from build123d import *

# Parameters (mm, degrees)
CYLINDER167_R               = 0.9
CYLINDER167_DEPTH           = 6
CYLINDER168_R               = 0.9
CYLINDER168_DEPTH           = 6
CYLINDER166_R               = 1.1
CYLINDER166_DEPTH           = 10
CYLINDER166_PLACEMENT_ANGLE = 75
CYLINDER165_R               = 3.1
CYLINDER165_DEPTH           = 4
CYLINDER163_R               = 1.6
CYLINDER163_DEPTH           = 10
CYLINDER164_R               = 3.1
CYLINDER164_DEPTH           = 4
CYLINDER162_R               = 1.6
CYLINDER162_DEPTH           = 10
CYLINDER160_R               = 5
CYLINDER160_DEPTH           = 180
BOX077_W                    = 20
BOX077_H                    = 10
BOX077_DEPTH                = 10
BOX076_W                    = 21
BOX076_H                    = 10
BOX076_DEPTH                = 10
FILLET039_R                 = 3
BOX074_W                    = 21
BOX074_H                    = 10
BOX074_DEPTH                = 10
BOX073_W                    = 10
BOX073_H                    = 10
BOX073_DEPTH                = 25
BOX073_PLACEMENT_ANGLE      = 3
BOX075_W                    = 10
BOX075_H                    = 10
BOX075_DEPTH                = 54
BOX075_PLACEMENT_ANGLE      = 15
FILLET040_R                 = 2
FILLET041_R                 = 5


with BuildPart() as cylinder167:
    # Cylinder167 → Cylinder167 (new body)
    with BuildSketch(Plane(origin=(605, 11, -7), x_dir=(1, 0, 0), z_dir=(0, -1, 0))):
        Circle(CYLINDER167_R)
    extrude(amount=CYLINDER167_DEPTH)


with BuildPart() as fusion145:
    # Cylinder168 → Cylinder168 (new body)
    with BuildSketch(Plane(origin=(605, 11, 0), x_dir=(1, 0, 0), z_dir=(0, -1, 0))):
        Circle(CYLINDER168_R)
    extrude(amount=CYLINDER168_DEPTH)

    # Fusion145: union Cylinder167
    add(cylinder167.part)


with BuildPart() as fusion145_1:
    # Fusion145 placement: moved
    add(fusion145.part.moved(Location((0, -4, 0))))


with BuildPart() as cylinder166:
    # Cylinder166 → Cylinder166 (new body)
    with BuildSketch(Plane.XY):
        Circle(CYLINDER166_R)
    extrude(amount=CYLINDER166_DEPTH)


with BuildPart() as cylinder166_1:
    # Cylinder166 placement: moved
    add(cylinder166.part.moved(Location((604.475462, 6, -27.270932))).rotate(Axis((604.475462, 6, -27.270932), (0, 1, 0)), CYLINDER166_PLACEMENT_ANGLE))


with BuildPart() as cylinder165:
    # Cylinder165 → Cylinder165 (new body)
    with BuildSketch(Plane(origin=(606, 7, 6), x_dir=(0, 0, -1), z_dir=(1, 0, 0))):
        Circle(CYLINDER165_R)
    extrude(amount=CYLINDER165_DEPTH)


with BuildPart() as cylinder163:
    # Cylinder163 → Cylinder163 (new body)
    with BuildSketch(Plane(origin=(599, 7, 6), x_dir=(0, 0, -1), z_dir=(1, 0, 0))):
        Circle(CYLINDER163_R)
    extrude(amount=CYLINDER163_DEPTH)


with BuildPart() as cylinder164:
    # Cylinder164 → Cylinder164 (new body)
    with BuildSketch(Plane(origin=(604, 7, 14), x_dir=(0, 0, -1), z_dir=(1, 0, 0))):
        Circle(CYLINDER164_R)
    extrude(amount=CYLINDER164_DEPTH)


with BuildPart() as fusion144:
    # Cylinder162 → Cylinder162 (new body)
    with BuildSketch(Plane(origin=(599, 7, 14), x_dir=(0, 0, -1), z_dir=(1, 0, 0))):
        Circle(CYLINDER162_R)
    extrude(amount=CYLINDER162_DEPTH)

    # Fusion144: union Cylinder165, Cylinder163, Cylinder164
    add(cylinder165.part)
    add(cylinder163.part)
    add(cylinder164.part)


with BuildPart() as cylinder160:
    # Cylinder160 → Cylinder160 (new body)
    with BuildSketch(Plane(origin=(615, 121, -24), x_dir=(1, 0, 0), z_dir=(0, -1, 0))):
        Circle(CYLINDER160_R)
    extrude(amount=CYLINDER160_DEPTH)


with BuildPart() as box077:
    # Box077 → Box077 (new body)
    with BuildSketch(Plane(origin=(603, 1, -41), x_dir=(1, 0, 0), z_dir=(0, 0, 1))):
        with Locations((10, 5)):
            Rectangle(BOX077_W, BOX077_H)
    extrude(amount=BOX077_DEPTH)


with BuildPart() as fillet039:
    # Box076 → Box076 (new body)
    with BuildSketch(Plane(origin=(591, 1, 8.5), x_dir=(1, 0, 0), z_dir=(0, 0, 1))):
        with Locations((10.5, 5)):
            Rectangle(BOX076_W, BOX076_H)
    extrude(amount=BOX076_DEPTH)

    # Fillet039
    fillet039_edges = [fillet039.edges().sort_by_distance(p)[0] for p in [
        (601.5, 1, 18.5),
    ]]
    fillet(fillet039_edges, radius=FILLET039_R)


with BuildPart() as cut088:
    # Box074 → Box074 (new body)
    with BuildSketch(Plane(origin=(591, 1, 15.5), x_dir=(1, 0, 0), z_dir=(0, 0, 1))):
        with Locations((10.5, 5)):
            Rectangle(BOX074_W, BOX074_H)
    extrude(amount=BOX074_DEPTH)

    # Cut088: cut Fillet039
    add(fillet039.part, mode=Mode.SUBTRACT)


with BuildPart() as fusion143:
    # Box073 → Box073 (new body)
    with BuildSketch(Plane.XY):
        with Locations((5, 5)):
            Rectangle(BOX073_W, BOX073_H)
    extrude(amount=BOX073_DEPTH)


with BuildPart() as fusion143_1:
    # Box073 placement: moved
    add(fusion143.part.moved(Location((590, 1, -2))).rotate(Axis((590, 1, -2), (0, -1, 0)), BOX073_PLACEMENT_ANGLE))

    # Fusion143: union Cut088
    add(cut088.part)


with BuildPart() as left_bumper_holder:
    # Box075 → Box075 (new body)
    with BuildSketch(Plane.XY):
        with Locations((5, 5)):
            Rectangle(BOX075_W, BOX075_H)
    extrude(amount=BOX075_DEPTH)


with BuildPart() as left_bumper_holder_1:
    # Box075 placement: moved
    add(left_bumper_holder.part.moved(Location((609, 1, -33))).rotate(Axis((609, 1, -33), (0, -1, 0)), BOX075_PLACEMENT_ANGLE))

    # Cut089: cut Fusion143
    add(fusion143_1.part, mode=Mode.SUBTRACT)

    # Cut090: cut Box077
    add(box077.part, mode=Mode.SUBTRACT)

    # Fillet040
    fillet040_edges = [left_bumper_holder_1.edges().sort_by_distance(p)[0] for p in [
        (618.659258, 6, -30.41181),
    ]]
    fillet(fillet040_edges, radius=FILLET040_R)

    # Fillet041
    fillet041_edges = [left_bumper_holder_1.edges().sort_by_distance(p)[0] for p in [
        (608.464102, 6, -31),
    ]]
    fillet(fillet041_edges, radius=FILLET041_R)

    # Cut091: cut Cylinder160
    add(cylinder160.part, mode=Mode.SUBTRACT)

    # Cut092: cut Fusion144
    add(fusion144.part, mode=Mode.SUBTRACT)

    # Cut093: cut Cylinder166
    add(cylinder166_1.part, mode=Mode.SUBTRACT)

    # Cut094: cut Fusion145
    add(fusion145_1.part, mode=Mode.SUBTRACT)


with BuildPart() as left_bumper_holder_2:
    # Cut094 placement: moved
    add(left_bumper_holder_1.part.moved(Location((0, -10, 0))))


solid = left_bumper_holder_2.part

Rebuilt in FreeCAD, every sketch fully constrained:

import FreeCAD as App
import Part
import Sketcher
from FreeCAD import Vector


def edges_at(feature, points):
    """Names of the edges that pass closest to the given points."""
    edges = feature.Shape.Edges
    near = lambda p: min(range(len(edges)), key=lambda i: edges[i].distToShape(Part.Vertex(*p))[0])
    return sorted({f"Edge{near(p) + 1}" for p in points})


def add_polygon(sketch, points):
    """Adds a closed chain of lines whose ends are joined by coincident constraints."""
    first, n = sketch.GeometryCount, len(points)
    for a, b in zip(points, points[1:] + points[:1]):
        sketch.addGeometry(Part.LineSegment(App.Vector(*a, 0), App.Vector(*b, 0)), False)
    for i in range(n):
        sketch.addConstraint(Sketcher.Constraint("Coincident", first + i, 2, first + (i + 1) % n, 1))

doc = App.newDocument("Part")
body = doc.addObject("PartDesign::Body", "Body")

# Sketch on XZ plane
sketch1 = body.newObject("Sketcher::SketchObject", "Sketch")
sketch1.AttachmentSupport = (doc.getObject("XZ_Plane"), [""])
sketch1.MapMode = "FlatFace"
sketch1.AttachmentOffset = App.Placement(Vector(0, 0, -11), App.Rotation())
sketch1.addGeometry(Part.Circle(Vector(605, -7, 0), Vector(0, 0, 1), 0.9), False)
sketch1.addConstraint(Sketcher.Constraint("Diameter", 0, 1.8))
sketch1.addConstraint(Sketcher.Constraint("DistanceX", -1, 1, 0, 3, 605.0))
sketch1.addConstraint(Sketcher.Constraint("DistanceY", 0, 3, -1, 1, 7.0))
pad1 = body.newObject("PartDesign::Pad", "Pad")
pad1.Profile = sketch1
pad1.Length = 6
body2 = doc.addObject("PartDesign::Body", "Body001")
body2.AllowCompound = True

# Sketch on XZ plane
sketch2 = body2.newObject("Sketcher::SketchObject", "Sketch001")
sketch2.AttachmentSupport = (doc.getObject("XZ_Plane001"), [""])
sketch2.MapMode = "FlatFace"
sketch2.AttachmentOffset = App.Placement(Vector(0, 0, -11), App.Rotation())
sketch2.addGeometry(Part.Circle(Vector(605, 0, 0), Vector(0, 0, 1), 0.9), False)
sketch2.addConstraint(Sketcher.Constraint("PointOnObject", 0, 3, -1))
sketch2.addConstraint(Sketcher.Constraint("Diameter", 0, 1.8))
sketch2.addConstraint(Sketcher.Constraint("DistanceX", -1, 1, 0, 3, 605.0))
pad2 = body2.newObject("PartDesign::Pad", "Pad001")
pad2.Profile = sketch2
pad2.Length = 6
doc.recompute()

boolean = body2.newObject("PartDesign::Boolean", "Boolean")
boolean.Type = "Fuse"
boolean.addObjects([body])
body3 = doc.addObject("PartDesign::Body", "Body002")
body3.AllowCompound = True
doc.recompute()

body2.Placement = App.Placement(Vector(0, -4, 0), App.Rotation(Vector(0, 0, 1), 0))
boolean2 = body3.newObject("PartDesign::Boolean", "Boolean001")
boolean2.Type = "Fuse"
boolean2.addObjects([body2])
body4 = doc.addObject("PartDesign::Body", "Body003")

# Sketch on XY plane
sketch3 = body4.newObject("Sketcher::SketchObject", "Sketch002")
sketch3.AttachmentSupport = (doc.getObject("XY_Plane003"), [""])
sketch3.MapMode = "FlatFace"
sketch3.addGeometry(Part.Circle(Vector(0, 0, 0), Vector(0, 0, 1), 1.1), False)
sketch3.addConstraint(Sketcher.Constraint("Coincident", 0, 3, -1, 1))
sketch3.addConstraint(Sketcher.Constraint("Diameter", 0, 2.2))
pad3 = body4.newObject("PartDesign::Pad", "Pad002")
pad3.Profile = sketch3
pad3.Length = 10
body5 = doc.addObject("PartDesign::Body", "Body004")
doc.recompute()

body4.Placement = App.Placement(Vector(604.475462, 6, -27.270932), App.Rotation(Vector(0, 1, 0), 75))
boolean3 = body5.newObject("PartDesign::Boolean", "Boolean002")
boolean3.Type = "Fuse"
boolean3.addObjects([body4])
body6 = doc.addObject("PartDesign::Body", "Body005")

# Sketch on YZ plane
sketch4 = body6.newObject("Sketcher::SketchObject", "Sketch003")
sketch4.AttachmentSupport = (doc.getObject("YZ_Plane005"), [""])
sketch4.MapMode = "FlatFace"
sketch4.AttachmentOffset = App.Placement(Vector(0, 0, 606), App.Rotation())
sketch4.addGeometry(Part.Circle(Vector(7, 6, 0), Vector(0, 0, 1), 3.1), False)
sketch4.addConstraint(Sketcher.Constraint("Diameter", 0, 6.2))
sketch4.addConstraint(Sketcher.Constraint("DistanceX", -1, 1, 0, 3, 7.0))
sketch4.addConstraint(Sketcher.Constraint("DistanceY", -1, 1, 0, 3, 6.0))
pad4 = body6.newObject("PartDesign::Pad", "Pad003")
pad4.Profile = sketch4
pad4.Length = 4
body7 = doc.addObject("PartDesign::Body", "Body006")

# Sketch on YZ plane
sketch5 = body7.newObject("Sketcher::SketchObject", "Sketch004")
sketch5.AttachmentSupport = (doc.getObject("YZ_Plane006"), [""])
sketch5.MapMode = "FlatFace"
sketch5.AttachmentOffset = App.Placement(Vector(0, 0, 599), App.Rotation())
sketch5.addGeometry(Part.Circle(Vector(7, 6, 0), Vector(0, 0, 1), 1.6), False)
sketch5.addConstraint(Sketcher.Constraint("Diameter", 0, 3.2))
sketch5.addConstraint(Sketcher.Constraint("DistanceX", -1, 1, 0, 3, 7.0))
sketch5.addConstraint(Sketcher.Constraint("DistanceY", -1, 1, 0, 3, 6.0))
pad5 = body7.newObject("PartDesign::Pad", "Pad004")
pad5.Profile = sketch5
pad5.Length = 10
body8 = doc.addObject("PartDesign::Body", "Body007")

# Sketch on YZ plane
sketch6 = body8.newObject("Sketcher::SketchObject", "Sketch005")
sketch6.AttachmentSupport = (doc.getObject("YZ_Plane007"), [""])
sketch6.MapMode = "FlatFace"
sketch6.AttachmentOffset = App.Placement(Vector(0, 0, 604), App.Rotation())
sketch6.addGeometry(Part.Circle(Vector(7, 14, 0), Vector(0, 0, 1), 3.1), False)
sketch6.addConstraint(Sketcher.Constraint("Diameter", 0, 6.2))
sketch6.addConstraint(Sketcher.Constraint("DistanceX", -1, 1, 0, 3, 7.0))
sketch6.addConstraint(Sketcher.Constraint("DistanceY", -1, 1, 0, 3, 14.0))
pad6 = body8.newObject("PartDesign::Pad", "Pad005")
pad6.Profile = sketch6
pad6.Length = 4
body9 = doc.addObject("PartDesign::Body", "Body008")
body9.AllowCompound = True

# Sketch on YZ plane
sketch7 = body9.newObject("Sketcher::SketchObject", "Sketch006")
sketch7.AttachmentSupport = (doc.getObject("YZ_Plane008"), [""])
sketch7.MapMode = "FlatFace"
sketch7.AttachmentOffset = App.Placement(Vector(0, 0, 599), App.Rotation())
sketch7.addGeometry(Part.Circle(Vector(7, 14, 0), Vector(0, 0, 1), 1.6), False)
sketch7.addConstraint(Sketcher.Constraint("Diameter", 0, 3.2))
sketch7.addConstraint(Sketcher.Constraint("DistanceX", -1, 1, 0, 3, 7.0))
sketch7.addConstraint(Sketcher.Constraint("DistanceY", -1, 1, 0, 3, 14.0))
pad7 = body9.newObject("PartDesign::Pad", "Pad006")
pad7.Profile = sketch7
pad7.Length = 10
doc.recompute()

boolean4 = body9.newObject("PartDesign::Boolean", "Boolean003")
boolean4.Type = "Fuse"
boolean4.addObjects([body6])
doc.recompute()

boolean5 = body9.newObject("PartDesign::Boolean", "Boolean004")
boolean5.Type = "Fuse"
boolean5.addObjects([body7])
doc.recompute()

boolean6 = body9.newObject("PartDesign::Boolean", "Boolean005")
boolean6.Type = "Fuse"
boolean6.addObjects([body8])
body10 = doc.addObject("PartDesign::Body", "Body009")

# Sketch on XZ plane
sketch8 = body10.newObject("Sketcher::SketchObject", "Sketch007")
sketch8.AttachmentSupport = (doc.getObject("XZ_Plane009"), [""])
sketch8.MapMode = "FlatFace"
sketch8.AttachmentOffset = App.Placement(Vector(0, 0, -121), App.Rotation())
sketch8.addGeometry(Part.Circle(Vector(615, -24, 0), Vector(0, 0, 1), 5), False)
sketch8.addConstraint(Sketcher.Constraint("Diameter", 0, 10.0))
sketch8.addConstraint(Sketcher.Constraint("DistanceX", -1, 1, 0, 3, 615.0))
sketch8.addConstraint(Sketcher.Constraint("DistanceY", 0, 3, -1, 1, 24.0))
pad8 = body10.newObject("PartDesign::Pad", "Pad007")
pad8.Profile = sketch8
pad8.Length = 180
body11 = doc.addObject("PartDesign::Body", "Body010")

# Sketch on XY plane
sketch9 = body11.newObject("Sketcher::SketchObject", "Sketch008")
sketch9.AttachmentSupport = (doc.getObject("XY_Plane010"), [""])
sketch9.MapMode = "FlatFace"
sketch9.AttachmentOffset = App.Placement(Vector(0, 0, -41), App.Rotation())
add_polygon(sketch9, [(603, 11), (603, 1), (623, 1), (623, 11)])  # lines 0-3
sketch9.addConstraint(Sketcher.Constraint("Vertical", 0))
sketch9.addConstraint(Sketcher.Constraint("Horizontal", 1))
sketch9.addConstraint(Sketcher.Constraint("Vertical", 2))
sketch9.addConstraint(Sketcher.Constraint("Horizontal", 3))
sketch9.addConstraint(Sketcher.Constraint("DistanceX", 1, 1, 1, 2, 20.0))
sketch9.addConstraint(Sketcher.Constraint("DistanceY", 0, 2, 0, 1, 10.0))
sketch9.addConstraint(Sketcher.Constraint("DistanceX", -1, 1, 0, 2, 603.0))
sketch9.addConstraint(Sketcher.Constraint("DistanceY", -1, 1, 0, 2, 1.0))
pad9 = body11.newObject("PartDesign::Pad", "Pad008")
pad9.Profile = sketch9
pad9.Length = 10
body12 = doc.addObject("PartDesign::Body", "Body011")

# Sketch on XY plane
sketch10 = body12.newObject("Sketcher::SketchObject", "Sketch009")
sketch10.AttachmentSupport = (doc.getObject("XY_Plane011"), [""])
sketch10.MapMode = "FlatFace"
sketch10.AttachmentOffset = App.Placement(Vector(0, 0, 8.5), App.Rotation())
add_polygon(sketch10, [(591, 11), (591, 1), (612, 1), (612, 11)])  # lines 0-3
sketch10.addConstraint(Sketcher.Constraint("Vertical", 0))
sketch10.addConstraint(Sketcher.Constraint("Horizontal", 1))
sketch10.addConstraint(Sketcher.Constraint("Vertical", 2))
sketch10.addConstraint(Sketcher.Constraint("Horizontal", 3))
sketch10.addConstraint(Sketcher.Constraint("DistanceX", 1, 1, 1, 2, 21.0))
sketch10.addConstraint(Sketcher.Constraint("DistanceY", 0, 2, 0, 1, 10.0))
sketch10.addConstraint(Sketcher.Constraint("DistanceX", -1, 1, 0, 2, 591.0))
sketch10.addConstraint(Sketcher.Constraint("DistanceY", -1, 1, 0, 2, 1.0))
pad10 = body12.newObject("PartDesign::Pad", "Pad009")
pad10.Profile = sketch10
pad10.Length = 10
doc.recompute()

fillet = body12.newObject("PartDesign::Fillet", "Fillet")
fillet.Base = (pad10, edges_at(pad10, [(601.5, 1, 18.5)]))
fillet.Radius = 3
body13 = doc.addObject("PartDesign::Body", "Body012")

# Sketch on XY plane
sketch11 = body13.newObject("Sketcher::SketchObject", "Sketch010")
sketch11.AttachmentSupport = (doc.getObject("XY_Plane012"), [""])
sketch11.MapMode = "FlatFace"
sketch11.AttachmentOffset = App.Placement(Vector(0, 0, 15.5), App.Rotation())
add_polygon(sketch11, [(591, 11), (591, 1), (612, 1), (612, 11)])  # lines 0-3
sketch11.addConstraint(Sketcher.Constraint("Vertical", 0))
sketch11.addConstraint(Sketcher.Constraint("Horizontal", 1))
sketch11.addConstraint(Sketcher.Constraint("Vertical", 2))
sketch11.addConstraint(Sketcher.Constraint("Horizontal", 3))
sketch11.addConstraint(Sketcher.Constraint("DistanceX", 1, 1, 1, 2, 21.0))
sketch11.addConstraint(Sketcher.Constraint("DistanceY", 0, 2, 0, 1, 10.0))
sketch11.addConstraint(Sketcher.Constraint("DistanceX", -1, 1, 0, 2, 591.0))
sketch11.addConstraint(Sketcher.Constraint("DistanceY", -1, 1, 0, 2, 1.0))
pad11 = body13.newObject("PartDesign::Pad", "Pad010")
pad11.Profile = sketch11
pad11.Length = 10
doc.recompute()

boolean7 = body13.newObject("PartDesign::Boolean", "Boolean006")
boolean7.Type = "Cut"
boolean7.addObjects([body12])
body14 = doc.addObject("PartDesign::Body", "Body013")

# Sketch on XY plane
sketch12 = body14.newObject("Sketcher::SketchObject", "Sketch011")
sketch12.AttachmentSupport = (doc.getObject("XY_Plane013"), [""])
sketch12.MapMode = "FlatFace"
add_polygon(sketch12, [(0, 10), (0, 0), (10, 0), (10, 10)])  # lines 0-3
sketch12.addConstraint(Sketcher.Constraint("Vertical", 0))
sketch12.addConstraint(Sketcher.Constraint("Horizontal", 1))
sketch12.addConstraint(Sketcher.Constraint("Vertical", 2))
sketch12.addConstraint(Sketcher.Constraint("Horizontal", 3))
sketch12.addConstraint(Sketcher.Constraint("Coincident", 0, 2, -1, 1))
sketch12.addConstraint(Sketcher.Constraint("Equal", 3, 0))
sketch12.addConstraint(Sketcher.Constraint("DistanceX", 1, 1, 1, 2, 10.0))
pad12 = body14.newObject("PartDesign::Pad", "Pad011")
pad12.Profile = sketch12
pad12.Length = 25
body15 = doc.addObject("PartDesign::Body", "Body014")
doc.recompute()

body14.Placement = App.Placement(Vector(590, 1, -2), App.Rotation(Vector(0, -1, 0), 3))
boolean8 = body15.newObject("PartDesign::Boolean", "Boolean007")
boolean8.Type = "Fuse"
boolean8.addObjects([body14])
doc.recompute()

boolean9 = body15.newObject("PartDesign::Boolean", "Boolean008")
boolean9.Type = "Fuse"
boolean9.addObjects([body13])
body16 = doc.addObject("PartDesign::Body", "Body015")

# Sketch on XY plane
sketch13 = body16.newObject("Sketcher::SketchObject", "Sketch012")
sketch13.AttachmentSupport = (doc.getObject("XY_Plane015"), [""])
sketch13.MapMode = "FlatFace"
add_polygon(sketch13, [(0, 10), (0, 0), (10, 0), (10, 10)])  # lines 0-3
sketch13.addConstraint(Sketcher.Constraint("Vertical", 0))
sketch13.addConstraint(Sketcher.Constraint("Horizontal", 1))
sketch13.addConstraint(Sketcher.Constraint("Vertical", 2))
sketch13.addConstraint(Sketcher.Constraint("Horizontal", 3))
sketch13.addConstraint(Sketcher.Constraint("Coincident", 0, 2, -1, 1))
sketch13.addConstraint(Sketcher.Constraint("Equal", 3, 0))
sketch13.addConstraint(Sketcher.Constraint("DistanceX", 1, 1, 1, 2, 10.0))
pad13 = body16.newObject("PartDesign::Pad", "Pad012")
pad13.Profile = sketch13
pad13.Length = 54
body17 = doc.addObject("PartDesign::Body", "Body016")
doc.recompute()

body16.Placement = App.Placement(Vector(609, 1, -33), App.Rotation(Vector(0, -1, 0), 15))
boolean10 = body17.newObject("PartDesign::Boolean", "Boolean009")
boolean10.Type = "Fuse"
boolean10.addObjects([body16])
doc.recompute()

boolean11 = body17.newObject("PartDesign::Boolean", "Boolean010")
boolean11.Type = "Cut"
boolean11.addObjects([body15])
doc.recompute()

boolean12 = body17.newObject("PartDesign::Boolean", "Boolean011")
boolean12.Type = "Cut"
boolean12.addObjects([body11])
doc.recompute()

fillet2 = body17.newObject("PartDesign::Fillet", "Fillet001")
fillet2.Base = (boolean12, edges_at(boolean12, [(618.659, 6, -30.412)]))
fillet2.Radius = 2
doc.recompute()

fillet3 = body17.newObject("PartDesign::Fillet", "Fillet002")
fillet3.Base = (fillet2, edges_at(fillet2, [(608.464, 6, -31)]))
fillet3.Radius = 5
doc.recompute()

boolean13 = body17.newObject("PartDesign::Boolean", "Boolean012")
boolean13.Type = "Cut"
boolean13.addObjects([body10])
doc.recompute()

boolean14 = body17.newObject("PartDesign::Boolean", "Boolean013")
boolean14.Type = "Cut"
boolean14.addObjects([body9])
doc.recompute()

boolean15 = body17.newObject("PartDesign::Boolean", "Boolean014")
boolean15.Type = "Cut"
boolean15.addObjects([body5])
doc.recompute()

boolean16 = body17.newObject("PartDesign::Boolean", "Boolean015")
boolean16.Type = "Cut"
boolean16.addObjects([body3])
body18 = doc.addObject("PartDesign::Body", "Body017")
doc.recompute()

body17.Placement = App.Placement(Vector(0, -10, 0), App.Rotation(Vector(0, 0, 1), 0))
boolean17 = body18.newObject("PartDesign::Boolean", "Boolean016")
boolean17.Type = "Fuse"
boolean17.addObjects([body17])

doc.recompute()
